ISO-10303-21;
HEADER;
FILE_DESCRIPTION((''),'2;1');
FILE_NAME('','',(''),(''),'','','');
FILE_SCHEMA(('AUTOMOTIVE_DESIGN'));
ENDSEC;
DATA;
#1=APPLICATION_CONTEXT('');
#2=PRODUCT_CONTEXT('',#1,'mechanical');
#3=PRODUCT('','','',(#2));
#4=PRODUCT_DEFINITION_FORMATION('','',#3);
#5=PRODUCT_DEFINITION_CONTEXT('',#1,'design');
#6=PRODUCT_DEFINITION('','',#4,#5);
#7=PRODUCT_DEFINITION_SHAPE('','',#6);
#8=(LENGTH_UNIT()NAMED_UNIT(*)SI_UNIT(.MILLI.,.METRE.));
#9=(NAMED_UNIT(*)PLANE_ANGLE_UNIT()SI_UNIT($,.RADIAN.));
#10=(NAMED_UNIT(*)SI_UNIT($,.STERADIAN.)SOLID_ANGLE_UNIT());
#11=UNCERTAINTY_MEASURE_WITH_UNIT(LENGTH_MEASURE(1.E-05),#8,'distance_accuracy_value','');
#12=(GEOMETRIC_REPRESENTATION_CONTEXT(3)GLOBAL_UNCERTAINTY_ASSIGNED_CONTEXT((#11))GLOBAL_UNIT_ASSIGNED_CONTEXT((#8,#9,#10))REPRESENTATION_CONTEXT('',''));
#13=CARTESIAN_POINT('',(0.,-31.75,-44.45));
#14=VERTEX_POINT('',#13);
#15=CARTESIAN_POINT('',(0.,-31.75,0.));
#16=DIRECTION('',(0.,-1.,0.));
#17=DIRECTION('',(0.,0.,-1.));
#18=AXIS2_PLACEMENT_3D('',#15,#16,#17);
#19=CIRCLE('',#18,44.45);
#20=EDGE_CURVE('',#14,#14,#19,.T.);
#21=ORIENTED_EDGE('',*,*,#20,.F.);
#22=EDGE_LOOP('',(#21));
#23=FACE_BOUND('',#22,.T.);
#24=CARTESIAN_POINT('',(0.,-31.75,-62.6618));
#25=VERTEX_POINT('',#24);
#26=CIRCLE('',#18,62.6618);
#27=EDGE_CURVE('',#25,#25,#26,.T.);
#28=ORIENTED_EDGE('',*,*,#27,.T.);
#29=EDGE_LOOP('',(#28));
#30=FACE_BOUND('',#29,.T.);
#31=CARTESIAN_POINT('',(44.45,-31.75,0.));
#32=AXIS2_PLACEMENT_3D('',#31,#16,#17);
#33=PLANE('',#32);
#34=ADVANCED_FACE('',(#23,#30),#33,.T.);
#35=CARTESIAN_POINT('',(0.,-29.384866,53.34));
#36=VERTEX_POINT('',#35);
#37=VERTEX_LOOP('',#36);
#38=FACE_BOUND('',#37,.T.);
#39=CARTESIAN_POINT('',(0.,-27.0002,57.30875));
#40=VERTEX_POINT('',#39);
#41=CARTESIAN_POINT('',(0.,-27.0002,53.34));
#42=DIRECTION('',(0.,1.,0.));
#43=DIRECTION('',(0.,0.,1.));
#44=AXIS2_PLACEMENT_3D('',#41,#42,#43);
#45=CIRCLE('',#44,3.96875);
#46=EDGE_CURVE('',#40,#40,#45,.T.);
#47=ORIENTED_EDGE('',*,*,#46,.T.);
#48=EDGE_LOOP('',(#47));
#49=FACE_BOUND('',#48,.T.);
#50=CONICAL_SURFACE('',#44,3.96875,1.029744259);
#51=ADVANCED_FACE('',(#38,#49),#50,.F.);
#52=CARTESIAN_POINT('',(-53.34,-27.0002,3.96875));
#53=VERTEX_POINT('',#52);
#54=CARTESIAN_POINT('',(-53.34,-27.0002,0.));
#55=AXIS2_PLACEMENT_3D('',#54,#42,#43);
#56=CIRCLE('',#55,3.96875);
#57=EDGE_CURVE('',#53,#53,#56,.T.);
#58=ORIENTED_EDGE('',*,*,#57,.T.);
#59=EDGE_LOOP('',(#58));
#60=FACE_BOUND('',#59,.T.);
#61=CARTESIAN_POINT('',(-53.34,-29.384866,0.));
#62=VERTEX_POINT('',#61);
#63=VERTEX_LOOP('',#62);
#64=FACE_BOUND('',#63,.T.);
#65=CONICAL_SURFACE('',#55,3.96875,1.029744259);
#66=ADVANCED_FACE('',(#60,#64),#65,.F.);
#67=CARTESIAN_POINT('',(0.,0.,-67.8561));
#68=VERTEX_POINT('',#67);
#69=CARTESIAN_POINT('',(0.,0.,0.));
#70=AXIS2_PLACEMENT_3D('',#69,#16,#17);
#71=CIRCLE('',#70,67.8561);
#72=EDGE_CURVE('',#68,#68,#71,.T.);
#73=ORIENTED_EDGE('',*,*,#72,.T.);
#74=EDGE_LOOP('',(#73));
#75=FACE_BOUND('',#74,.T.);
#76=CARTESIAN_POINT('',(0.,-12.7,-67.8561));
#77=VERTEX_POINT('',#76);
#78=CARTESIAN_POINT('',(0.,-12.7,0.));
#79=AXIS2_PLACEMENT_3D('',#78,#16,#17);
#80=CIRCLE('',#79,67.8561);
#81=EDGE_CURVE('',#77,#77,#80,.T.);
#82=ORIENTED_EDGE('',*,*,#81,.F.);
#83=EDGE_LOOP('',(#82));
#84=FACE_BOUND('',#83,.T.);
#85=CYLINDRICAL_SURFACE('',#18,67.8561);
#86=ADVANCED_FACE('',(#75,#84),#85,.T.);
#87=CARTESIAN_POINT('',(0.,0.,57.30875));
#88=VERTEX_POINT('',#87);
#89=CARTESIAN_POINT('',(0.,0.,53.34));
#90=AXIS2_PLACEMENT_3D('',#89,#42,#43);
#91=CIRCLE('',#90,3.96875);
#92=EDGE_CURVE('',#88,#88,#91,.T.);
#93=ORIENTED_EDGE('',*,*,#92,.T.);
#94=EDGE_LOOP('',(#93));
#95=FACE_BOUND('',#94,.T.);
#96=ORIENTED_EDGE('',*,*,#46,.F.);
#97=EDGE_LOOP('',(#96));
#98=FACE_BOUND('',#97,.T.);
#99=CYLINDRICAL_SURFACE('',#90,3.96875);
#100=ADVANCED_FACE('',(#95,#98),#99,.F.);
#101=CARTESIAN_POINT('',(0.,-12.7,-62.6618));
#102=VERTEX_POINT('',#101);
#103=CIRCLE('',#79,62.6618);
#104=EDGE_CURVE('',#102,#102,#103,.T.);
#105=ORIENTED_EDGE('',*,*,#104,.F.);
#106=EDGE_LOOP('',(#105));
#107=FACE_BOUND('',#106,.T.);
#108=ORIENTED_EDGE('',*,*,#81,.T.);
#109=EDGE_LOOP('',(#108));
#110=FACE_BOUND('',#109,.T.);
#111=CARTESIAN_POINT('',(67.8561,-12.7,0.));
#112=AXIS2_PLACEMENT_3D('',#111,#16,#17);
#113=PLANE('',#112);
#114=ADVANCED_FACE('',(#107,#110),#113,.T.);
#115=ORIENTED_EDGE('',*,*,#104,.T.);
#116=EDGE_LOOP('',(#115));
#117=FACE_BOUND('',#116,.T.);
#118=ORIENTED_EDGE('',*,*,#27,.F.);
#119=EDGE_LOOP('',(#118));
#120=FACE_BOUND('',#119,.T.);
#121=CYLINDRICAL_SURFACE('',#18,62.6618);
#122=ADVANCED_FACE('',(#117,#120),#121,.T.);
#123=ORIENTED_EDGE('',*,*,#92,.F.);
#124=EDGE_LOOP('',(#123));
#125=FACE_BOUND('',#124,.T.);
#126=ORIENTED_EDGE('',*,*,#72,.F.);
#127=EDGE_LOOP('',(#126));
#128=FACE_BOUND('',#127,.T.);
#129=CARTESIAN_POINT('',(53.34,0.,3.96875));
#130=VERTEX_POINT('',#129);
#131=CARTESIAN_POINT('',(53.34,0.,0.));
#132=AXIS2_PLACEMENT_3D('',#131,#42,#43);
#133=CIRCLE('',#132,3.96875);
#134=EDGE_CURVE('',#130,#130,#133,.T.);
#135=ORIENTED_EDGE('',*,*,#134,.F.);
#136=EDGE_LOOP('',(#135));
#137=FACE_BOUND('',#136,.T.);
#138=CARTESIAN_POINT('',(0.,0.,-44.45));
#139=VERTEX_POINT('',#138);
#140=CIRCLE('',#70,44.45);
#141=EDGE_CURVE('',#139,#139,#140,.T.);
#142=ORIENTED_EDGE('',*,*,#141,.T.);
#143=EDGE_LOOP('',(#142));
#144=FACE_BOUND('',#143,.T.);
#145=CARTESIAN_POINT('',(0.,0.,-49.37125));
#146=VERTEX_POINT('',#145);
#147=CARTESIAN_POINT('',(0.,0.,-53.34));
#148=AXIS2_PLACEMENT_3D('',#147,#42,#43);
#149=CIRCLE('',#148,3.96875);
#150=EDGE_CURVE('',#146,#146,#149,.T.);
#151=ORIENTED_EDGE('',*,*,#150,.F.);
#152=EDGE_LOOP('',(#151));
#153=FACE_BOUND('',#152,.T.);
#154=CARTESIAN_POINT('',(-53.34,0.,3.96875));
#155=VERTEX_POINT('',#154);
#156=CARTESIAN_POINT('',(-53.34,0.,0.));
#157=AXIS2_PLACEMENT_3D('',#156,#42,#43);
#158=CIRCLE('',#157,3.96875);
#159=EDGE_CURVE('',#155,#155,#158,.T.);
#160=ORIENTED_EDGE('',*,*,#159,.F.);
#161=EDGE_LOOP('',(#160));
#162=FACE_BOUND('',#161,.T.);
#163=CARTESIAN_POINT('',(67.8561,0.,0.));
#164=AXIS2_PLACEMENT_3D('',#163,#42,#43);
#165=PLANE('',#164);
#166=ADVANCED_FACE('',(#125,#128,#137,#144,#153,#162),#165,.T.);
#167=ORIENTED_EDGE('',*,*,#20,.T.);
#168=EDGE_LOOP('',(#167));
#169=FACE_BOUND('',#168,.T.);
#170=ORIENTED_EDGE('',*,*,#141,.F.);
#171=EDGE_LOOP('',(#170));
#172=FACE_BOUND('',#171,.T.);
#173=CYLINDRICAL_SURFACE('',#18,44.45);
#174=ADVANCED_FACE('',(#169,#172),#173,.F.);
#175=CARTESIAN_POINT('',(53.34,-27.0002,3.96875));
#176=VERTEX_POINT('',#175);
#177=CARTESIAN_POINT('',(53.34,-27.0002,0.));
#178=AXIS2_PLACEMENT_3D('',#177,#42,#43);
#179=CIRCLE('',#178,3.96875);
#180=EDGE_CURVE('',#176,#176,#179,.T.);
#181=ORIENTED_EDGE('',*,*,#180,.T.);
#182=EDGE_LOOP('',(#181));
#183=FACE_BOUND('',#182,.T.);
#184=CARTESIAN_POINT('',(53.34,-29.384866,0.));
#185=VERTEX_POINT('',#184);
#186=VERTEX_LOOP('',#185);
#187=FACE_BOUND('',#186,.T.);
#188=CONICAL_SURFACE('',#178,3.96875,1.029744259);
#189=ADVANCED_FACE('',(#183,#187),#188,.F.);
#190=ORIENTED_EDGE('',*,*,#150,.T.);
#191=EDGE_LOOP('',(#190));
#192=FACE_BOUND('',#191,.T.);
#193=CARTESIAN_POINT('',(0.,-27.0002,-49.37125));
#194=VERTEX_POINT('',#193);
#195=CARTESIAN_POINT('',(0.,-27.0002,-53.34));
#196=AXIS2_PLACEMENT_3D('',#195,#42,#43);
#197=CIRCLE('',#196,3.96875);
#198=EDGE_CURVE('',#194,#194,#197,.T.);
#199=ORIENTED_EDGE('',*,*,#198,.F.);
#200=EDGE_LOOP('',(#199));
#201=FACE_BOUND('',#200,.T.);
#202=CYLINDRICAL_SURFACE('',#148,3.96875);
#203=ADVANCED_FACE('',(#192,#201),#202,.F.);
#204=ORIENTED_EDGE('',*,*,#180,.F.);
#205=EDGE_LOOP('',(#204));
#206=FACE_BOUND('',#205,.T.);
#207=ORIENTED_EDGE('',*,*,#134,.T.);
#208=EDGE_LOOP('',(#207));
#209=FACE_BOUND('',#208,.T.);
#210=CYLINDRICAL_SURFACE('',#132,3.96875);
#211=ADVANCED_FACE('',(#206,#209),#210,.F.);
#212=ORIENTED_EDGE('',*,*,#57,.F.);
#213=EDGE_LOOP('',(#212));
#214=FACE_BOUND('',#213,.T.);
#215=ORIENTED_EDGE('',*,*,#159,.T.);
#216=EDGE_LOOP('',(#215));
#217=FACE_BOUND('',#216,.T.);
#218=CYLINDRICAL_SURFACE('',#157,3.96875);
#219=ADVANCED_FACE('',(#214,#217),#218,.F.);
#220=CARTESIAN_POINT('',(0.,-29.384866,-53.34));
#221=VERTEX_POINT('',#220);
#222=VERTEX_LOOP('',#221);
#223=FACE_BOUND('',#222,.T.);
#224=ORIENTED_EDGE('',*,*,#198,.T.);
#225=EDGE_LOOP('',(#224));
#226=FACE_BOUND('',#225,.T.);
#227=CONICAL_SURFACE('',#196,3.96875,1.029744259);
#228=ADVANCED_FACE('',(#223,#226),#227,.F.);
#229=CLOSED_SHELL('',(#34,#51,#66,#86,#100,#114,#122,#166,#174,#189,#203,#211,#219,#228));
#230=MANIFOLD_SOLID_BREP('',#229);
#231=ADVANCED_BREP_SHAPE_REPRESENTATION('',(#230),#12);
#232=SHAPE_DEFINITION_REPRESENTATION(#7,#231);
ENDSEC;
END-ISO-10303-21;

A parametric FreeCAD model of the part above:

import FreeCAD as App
import Part
import Sketcher

V = App.Vector
Q = App.Units.Quantity

doc = App.newDocument("Part")
params = doc.addObject("Spreadsheet::Sheet", "Params")
for row, (alias, value) in enumerate([
    ("sketch1_height", "0.5 in"),
    ("sketch1_height2", "1.25 in"),
    ("sketch1_width", "0.717 in"),
    ("revolution_angle", "360 deg"),
    ("sketch2_width", "1.063 in"),
    ("sketch2_height", "0.15625 in"),
    ("groove_angle", "360 deg"),
], start=1):
    params.set(f"A{row}", alias)
    params.set(f"B{row}", "=" + value)
    params.setAlias(f"B{row}", alias)

body = doc.addObject("PartDesign::Body", "Body")

# Sketch on XY plane
sketch1 = body.newObject("Sketcher::SketchObject", "Sketch")
sketch1.AttachmentSupport = (doc.getObject("XY_Plane"), [""])
sketch1.MapMode = "FlatFace"
sketch1.addGeometry([
    Part.LineSegment(V(68, 0, 0), V(44, 0, 0)),  # 0
    Part.LineSegment(V(44, 0, 0), V(44, -32, 0)),  # 1
    Part.LineSegment(V(44, -32, 0), V(63, -32, 0)),  # 2
    Part.LineSegment(V(63, -32, 0), V(63, -13, 0)),  # 3
    Part.LineSegment(V(63, -13, 0), V(68, -13, 0)),  # 4
    Part.LineSegment(V(68, -13, 0), V(68, 0, 0)),  # 5
], False)
sketch1.addConstraint([
    Sketcher.Constraint("Coincident", 0, 2, 1, 1),
    Sketcher.Constraint("Coincident", 1, 2, 2, 1),
    Sketcher.Constraint("Coincident", 2, 2, 3, 1),
    Sketcher.Constraint("Coincident", 3, 2, 4, 1),
    Sketcher.Constraint("Coincident", 4, 2, 5, 1),
    Sketcher.Constraint("Coincident", 5, 2, 0, 1),
    Sketcher.Constraint("Horizontal", 0),
    Sketcher.Constraint("Vertical", 1),
    Sketcher.Constraint("Horizontal", 2),
    Sketcher.Constraint("Vertical", 3),
    Sketcher.Constraint("Horizontal", 4),
    Sketcher.Constraint("Vertical", 5),
    Sketcher.Constraint("PointOnObject", 0, 2, -1),
    Sketcher.Constraint("DistanceY", 5, 1, 5, 2, Q("0.5 in")),
    Sketcher.Constraint("DistanceY", 1, 2, 1, 1, Q("1.25 in")),
    Sketcher.Constraint("DistanceX", 2, 1, 2, 2, Q("0.717 in")),
    Sketcher.Constraint("DistanceX", -1, 1, 0, 2, Q("1.75 in")),
    Sketcher.Constraint("DistanceX", 0, 2, 0, 1, Q("0.9215 in")),
])
sketch1.setExpression("Constraints[13]", "Params.sketch1_height")
sketch1.setExpression("Constraints[14]", "Params.sketch1_height2")
sketch1.setExpression("Constraints[15]", "Params.sketch1_width")
revolution = body.newObject("PartDesign::Revolution", "Revolution")
revolution.Profile = sketch1
revolution.ReferenceAxis = (sketch1, ["V_Axis"])
revolution.setExpression("Angle", "Params.revolution_angle")

# Sketch on YZ plane
sketch2 = body.newObject("Sketcher::SketchObject", "Sketch001")
sketch2.AttachmentSupport = (doc.getObject("YZ_Plane"), [""])
sketch2.MapMode = "FlatFace"
sketch2.addGeometry([
    Part.LineSegment(V(-29.4, -53.3, 0), V(0, -53.3, 0)),
    Part.LineSegment(V(0, -53.3, 0), V(0, -49.4, 0)),
    Part.LineSegment(V(0, -49.4, 0), V(-27, -49.4, 0)),
    Part.LineSegment(V(-27, -49.4, 0), V(-29.4, -53.3, 0)),
], False)
sketch2.addGeometry(Part.LineSegment(V(0, -53.3, 0), V(-29.4, -53.3, 0)), True)  # axis
sketch2.addConstraint([
    Sketcher.Constraint("Coincident", 0, 2, 1, 1),
    Sketcher.Constraint("Coincident", 1, 2, 2, 1),
    Sketcher.Constraint("Coincident", 2, 2, 3, 1),
    Sketcher.Constraint("Coincident", 3, 2, 0, 1),
    Sketcher.Constraint("Horizontal", 0),
    Sketcher.Constraint("Vertical", 1),
    Sketcher.Constraint("Horizontal", 2),
    Sketcher.Constraint("Horizontal", 4),
    Sketcher.Constraint("Coincident", 4, 1, 0, 2),
    Sketcher.Constraint("PointOnObject", 0, 2, -2),
    Sketcher.Constraint("Equal", 0, 4),
    Sketcher.Constraint("Angle", 3, Q("-121 deg")),
    Sketcher.Constraint("DistanceY", 0, 2, -1, 1, Q("2.1 in")),
    Sketcher.Constraint("DistanceX", 2, 2, 2, 1, Q("1.063 in")),
    Sketcher.Constraint("DistanceY", 1, 1, 1, 2, Q("0.15625 in")),
])
sketch2.setExpression("Constraints[13]", "Params.sketch2_width")
sketch2.setExpression("Constraints[14]", "Params.sketch2_height")
groove = body.newObject("PartDesign::Groove", "Groove")
groove.Profile = sketch2
groove.ReferenceAxis = (sketch2, ["Axis0"])
groove.setExpression("Angle", "Params.groove_angle")
doc.recompute()

polarpattern = body.newObject("PartDesign::PolarPattern", "PolarPattern")
polarpattern.Originals = [groove]
polarpattern.Axis = (doc.getObject("Y_Axis"), [""])
polarpattern.Angle = 360
polarpattern.Occurrences = 4
body.Tip = polarpattern

doc.recompute()
